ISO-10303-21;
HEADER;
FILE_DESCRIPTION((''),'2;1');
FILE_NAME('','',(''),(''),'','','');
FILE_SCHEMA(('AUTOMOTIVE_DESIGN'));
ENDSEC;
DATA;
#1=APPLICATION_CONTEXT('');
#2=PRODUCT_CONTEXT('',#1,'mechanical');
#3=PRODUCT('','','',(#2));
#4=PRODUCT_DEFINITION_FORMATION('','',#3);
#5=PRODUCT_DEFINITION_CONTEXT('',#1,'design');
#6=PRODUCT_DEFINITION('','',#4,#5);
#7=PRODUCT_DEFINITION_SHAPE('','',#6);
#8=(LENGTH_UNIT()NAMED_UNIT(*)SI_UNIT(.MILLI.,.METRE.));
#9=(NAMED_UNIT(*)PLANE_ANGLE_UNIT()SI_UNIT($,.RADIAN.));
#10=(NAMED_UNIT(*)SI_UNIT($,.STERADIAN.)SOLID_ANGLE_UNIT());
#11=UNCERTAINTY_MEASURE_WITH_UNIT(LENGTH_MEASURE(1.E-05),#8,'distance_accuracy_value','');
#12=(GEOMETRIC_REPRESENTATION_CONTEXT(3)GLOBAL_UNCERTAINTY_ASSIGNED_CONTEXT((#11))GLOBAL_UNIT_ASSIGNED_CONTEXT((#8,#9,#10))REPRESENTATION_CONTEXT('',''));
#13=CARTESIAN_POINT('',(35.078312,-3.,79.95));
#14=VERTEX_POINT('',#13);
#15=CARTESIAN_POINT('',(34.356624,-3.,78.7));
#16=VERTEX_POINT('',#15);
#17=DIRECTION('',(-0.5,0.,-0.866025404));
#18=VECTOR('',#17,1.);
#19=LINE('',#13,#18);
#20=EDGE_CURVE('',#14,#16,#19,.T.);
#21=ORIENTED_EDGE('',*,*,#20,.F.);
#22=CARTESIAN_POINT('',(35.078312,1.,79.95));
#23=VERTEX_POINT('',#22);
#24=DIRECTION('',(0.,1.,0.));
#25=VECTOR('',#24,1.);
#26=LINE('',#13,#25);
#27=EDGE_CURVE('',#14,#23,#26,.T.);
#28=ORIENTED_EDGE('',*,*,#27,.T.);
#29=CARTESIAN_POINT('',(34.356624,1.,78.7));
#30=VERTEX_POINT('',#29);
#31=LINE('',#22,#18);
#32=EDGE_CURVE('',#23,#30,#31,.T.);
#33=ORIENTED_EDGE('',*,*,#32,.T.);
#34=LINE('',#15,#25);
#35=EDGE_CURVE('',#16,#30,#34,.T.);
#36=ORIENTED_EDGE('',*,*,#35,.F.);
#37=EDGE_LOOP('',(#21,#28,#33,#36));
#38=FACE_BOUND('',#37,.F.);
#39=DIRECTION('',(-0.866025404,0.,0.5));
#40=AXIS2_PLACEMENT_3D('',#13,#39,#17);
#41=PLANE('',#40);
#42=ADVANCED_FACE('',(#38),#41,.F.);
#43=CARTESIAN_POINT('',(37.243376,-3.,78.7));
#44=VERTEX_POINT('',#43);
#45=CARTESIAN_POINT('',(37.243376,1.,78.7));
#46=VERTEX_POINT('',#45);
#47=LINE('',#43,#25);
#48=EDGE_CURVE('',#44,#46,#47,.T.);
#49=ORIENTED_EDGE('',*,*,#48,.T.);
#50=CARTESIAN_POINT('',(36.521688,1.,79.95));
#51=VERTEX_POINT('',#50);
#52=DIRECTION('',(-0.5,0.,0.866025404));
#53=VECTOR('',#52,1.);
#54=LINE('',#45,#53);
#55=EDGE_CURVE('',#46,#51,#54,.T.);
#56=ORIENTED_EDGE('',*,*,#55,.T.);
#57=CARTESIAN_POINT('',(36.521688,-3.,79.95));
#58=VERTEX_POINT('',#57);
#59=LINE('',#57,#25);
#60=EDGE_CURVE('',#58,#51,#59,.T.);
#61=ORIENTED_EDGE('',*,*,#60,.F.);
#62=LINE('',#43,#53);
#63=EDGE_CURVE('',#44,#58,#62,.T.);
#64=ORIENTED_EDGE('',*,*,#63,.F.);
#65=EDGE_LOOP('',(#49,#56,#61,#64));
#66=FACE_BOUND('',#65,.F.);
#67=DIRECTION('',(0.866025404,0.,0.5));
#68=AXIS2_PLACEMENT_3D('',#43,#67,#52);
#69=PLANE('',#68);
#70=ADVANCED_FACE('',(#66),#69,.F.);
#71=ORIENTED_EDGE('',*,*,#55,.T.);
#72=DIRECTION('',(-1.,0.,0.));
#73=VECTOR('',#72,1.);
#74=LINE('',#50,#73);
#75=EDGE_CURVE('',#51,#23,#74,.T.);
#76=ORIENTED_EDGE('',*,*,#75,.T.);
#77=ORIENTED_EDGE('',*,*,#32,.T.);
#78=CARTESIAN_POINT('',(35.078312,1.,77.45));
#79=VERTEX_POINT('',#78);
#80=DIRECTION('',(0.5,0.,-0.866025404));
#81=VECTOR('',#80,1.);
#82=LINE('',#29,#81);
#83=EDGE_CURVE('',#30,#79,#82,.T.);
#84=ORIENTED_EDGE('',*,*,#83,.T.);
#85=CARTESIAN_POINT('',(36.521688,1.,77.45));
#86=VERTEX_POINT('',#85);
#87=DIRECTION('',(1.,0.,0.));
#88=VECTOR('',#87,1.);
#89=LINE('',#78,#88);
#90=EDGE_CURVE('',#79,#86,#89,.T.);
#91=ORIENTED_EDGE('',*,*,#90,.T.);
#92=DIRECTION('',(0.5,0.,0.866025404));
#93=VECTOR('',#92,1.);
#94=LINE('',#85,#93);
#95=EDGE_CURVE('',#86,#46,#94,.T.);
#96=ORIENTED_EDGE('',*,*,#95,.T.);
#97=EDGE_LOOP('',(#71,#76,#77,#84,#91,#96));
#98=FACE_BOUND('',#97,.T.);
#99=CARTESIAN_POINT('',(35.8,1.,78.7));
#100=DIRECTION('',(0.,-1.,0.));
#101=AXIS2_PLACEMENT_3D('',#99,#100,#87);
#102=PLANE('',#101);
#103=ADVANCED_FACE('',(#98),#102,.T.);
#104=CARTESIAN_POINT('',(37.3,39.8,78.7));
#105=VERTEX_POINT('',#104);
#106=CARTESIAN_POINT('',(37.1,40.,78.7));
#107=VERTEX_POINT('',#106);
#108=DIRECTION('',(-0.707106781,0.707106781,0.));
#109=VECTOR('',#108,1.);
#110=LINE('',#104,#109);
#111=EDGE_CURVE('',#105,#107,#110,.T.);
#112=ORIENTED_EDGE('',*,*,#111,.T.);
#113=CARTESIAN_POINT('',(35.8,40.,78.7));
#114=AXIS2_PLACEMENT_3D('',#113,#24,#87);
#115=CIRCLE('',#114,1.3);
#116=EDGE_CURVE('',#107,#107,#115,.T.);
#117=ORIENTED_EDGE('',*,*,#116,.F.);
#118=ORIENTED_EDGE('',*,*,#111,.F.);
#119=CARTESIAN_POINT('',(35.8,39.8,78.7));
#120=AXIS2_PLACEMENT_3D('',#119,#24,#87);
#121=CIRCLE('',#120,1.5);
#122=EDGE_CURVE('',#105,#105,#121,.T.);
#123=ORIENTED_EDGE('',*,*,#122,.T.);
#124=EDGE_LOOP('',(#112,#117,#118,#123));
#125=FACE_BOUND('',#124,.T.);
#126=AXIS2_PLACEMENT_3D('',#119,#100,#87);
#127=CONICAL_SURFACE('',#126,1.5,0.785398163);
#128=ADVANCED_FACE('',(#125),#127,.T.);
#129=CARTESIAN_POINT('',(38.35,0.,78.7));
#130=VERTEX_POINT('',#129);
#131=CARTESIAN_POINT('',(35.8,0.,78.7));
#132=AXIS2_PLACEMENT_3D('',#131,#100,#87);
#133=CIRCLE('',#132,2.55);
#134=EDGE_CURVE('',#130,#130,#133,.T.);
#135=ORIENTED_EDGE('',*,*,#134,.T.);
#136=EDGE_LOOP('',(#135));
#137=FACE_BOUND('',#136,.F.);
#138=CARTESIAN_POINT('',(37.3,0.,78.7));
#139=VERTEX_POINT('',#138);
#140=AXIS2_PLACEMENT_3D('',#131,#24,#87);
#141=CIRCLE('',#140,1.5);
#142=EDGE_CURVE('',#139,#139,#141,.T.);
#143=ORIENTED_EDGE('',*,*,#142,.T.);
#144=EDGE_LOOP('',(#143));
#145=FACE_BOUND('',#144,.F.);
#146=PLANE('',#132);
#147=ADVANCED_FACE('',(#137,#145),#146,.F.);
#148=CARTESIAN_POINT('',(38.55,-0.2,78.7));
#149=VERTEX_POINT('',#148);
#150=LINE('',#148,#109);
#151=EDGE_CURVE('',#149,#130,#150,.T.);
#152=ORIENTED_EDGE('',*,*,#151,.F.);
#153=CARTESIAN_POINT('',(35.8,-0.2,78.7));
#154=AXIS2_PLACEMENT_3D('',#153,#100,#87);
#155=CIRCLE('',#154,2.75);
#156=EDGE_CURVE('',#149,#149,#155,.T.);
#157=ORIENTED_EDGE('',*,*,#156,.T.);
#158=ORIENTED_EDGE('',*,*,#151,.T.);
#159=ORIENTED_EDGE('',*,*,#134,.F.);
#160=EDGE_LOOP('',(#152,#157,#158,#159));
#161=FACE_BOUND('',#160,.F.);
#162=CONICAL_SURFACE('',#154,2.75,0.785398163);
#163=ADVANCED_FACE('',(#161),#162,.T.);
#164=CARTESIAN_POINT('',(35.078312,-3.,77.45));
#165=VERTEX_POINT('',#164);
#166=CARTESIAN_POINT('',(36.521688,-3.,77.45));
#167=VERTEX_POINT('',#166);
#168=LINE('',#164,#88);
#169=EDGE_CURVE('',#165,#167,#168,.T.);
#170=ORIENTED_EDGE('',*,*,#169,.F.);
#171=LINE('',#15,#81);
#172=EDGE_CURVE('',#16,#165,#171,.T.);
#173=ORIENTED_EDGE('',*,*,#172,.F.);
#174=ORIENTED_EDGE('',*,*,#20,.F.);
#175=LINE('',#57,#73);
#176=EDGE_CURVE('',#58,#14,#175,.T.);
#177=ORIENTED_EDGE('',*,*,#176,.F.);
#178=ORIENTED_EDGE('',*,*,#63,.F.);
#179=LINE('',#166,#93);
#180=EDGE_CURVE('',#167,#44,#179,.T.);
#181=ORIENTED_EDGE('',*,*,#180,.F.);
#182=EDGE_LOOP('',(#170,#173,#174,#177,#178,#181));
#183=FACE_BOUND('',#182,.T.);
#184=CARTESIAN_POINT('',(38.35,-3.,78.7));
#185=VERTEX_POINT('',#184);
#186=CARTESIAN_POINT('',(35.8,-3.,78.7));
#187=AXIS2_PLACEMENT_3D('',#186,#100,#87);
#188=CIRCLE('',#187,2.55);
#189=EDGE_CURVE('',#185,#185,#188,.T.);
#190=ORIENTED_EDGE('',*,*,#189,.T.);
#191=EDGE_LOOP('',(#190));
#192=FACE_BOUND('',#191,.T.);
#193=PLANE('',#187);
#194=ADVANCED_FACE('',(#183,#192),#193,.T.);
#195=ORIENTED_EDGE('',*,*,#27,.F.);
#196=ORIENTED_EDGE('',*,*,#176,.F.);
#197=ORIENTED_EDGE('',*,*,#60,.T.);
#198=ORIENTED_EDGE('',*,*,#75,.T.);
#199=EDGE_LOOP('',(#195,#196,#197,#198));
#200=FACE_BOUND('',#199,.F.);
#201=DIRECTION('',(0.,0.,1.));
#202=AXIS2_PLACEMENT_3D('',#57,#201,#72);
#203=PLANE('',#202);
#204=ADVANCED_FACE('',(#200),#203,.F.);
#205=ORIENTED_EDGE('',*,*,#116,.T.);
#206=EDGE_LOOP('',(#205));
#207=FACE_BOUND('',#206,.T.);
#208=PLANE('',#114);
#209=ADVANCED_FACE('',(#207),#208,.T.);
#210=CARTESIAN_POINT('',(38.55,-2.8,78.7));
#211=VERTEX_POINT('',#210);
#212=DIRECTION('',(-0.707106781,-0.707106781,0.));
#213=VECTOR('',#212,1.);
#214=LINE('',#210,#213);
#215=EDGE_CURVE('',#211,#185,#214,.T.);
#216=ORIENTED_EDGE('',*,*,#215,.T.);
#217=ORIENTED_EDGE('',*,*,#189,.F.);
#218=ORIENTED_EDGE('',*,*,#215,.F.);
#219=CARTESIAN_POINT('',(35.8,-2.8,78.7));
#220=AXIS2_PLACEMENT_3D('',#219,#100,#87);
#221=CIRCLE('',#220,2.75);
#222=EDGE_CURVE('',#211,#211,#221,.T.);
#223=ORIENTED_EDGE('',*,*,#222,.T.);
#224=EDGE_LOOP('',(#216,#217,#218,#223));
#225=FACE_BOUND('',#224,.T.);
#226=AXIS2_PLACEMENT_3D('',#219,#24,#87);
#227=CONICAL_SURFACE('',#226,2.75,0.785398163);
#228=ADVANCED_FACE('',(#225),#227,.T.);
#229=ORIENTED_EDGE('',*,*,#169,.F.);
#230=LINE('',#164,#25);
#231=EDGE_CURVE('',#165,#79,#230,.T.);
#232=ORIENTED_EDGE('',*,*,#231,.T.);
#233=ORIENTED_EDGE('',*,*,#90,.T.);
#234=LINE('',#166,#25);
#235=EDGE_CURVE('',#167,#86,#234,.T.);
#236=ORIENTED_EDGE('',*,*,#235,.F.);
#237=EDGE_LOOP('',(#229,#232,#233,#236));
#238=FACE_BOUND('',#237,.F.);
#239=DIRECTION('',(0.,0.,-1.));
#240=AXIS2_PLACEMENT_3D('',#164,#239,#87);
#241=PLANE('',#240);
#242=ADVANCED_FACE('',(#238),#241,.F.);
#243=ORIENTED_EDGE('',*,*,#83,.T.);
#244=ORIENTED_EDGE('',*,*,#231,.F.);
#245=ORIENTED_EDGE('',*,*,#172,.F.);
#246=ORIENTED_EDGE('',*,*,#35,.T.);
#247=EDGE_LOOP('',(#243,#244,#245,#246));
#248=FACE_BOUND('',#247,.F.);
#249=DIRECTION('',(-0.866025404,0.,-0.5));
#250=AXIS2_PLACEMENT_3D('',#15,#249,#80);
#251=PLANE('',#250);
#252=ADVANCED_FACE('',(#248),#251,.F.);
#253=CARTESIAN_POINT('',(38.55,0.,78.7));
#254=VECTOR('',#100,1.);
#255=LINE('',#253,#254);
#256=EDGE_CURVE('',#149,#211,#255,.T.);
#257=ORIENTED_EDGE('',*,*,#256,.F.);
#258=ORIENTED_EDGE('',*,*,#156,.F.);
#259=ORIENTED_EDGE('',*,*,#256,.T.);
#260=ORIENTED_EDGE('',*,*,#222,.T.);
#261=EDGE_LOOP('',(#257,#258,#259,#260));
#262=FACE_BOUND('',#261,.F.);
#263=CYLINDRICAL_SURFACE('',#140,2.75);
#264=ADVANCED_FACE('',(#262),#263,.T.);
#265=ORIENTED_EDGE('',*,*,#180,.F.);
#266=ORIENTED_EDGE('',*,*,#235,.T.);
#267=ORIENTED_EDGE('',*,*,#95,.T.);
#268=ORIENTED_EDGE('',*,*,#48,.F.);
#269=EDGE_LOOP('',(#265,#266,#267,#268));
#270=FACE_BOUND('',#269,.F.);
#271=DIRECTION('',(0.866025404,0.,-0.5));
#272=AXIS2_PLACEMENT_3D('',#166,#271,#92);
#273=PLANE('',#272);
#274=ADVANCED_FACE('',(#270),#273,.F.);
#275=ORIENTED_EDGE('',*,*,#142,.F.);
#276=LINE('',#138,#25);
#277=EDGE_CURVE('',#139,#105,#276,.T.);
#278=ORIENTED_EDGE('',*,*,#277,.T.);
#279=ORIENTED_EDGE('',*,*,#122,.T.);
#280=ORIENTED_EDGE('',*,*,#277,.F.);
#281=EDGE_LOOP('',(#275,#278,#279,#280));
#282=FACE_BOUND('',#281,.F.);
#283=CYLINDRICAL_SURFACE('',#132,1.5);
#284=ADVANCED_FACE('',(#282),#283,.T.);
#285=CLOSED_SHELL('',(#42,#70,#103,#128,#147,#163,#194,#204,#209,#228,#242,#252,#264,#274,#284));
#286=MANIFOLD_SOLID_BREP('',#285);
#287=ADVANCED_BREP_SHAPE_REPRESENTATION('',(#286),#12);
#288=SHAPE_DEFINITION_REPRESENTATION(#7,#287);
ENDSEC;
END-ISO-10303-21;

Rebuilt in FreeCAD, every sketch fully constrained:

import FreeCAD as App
import Part
import Sketcher
Q = App.Units.Quantity


def edges_at(feature, points):
    """Names of the edges that pass closest to the given points."""
    edges = feature.Shape.Edges
    near = lambda p: min(range(len(edges)), key=lambda i: edges[i].distToShape(Part.Vertex(*p))[0])
    return sorted({f"Edge{near(p) + 1}" for p in points})


def add_polygon(sketch, points):
    """Adds a closed chain of lines whose ends are joined by coincident constraints."""
    first, n = sketch.GeometryCount, len(points)
    for a, b in zip(points, points[1:] + points[:1]):
        sketch.addGeometry(Part.LineSegment(App.Vector(*a, 0), App.Vector(*b, 0)), False)
    for i in range(n):
        sketch.addConstraint(Sketcher.Constraint("Coincident", first + i, 2, first + (i + 1) % n, 1))

doc = App.newDocument("Part")
body = doc.addObject("PartDesign::Body", "Body")

# Sketch on XY plane
sketch1 = body.newObject("Sketcher::SketchObject", "Sketch")
sketch1.AttachmentSupport = (doc.getObject("XY_Plane"), [""])
sketch1.MapMode = "FlatFace"
sketch1.addGeometry(Part.Circle(App.Vector(0, 0, 0), App.Vector(0, 0, 1), 2.8), False)
sketch1.addConstraint(Sketcher.Constraint("Coincident", 0, 3, -1, 1))
sketch1.addConstraint(Sketcher.Constraint("Diameter", 0, Q("5.5 mm")))
pad1 = body.newObject("PartDesign::Pad", "Pad")
pad1.Profile = sketch1
pad1.Length = 3

# Sketch on XY plane
sketch2 = body.newObject("Sketcher::SketchObject", "Sketch001")
sketch2.AttachmentSupport = (doc.getObject("XY_Plane"), [""])
sketch2.MapMode = "FlatFace"
sketch2.addGeometry(Part.Circle(App.Vector(0, 0, 0), App.Vector(0, 0, 1), 1.5), False)
sketch2.addConstraint(Sketcher.Constraint("Coincident", 0, 3, -1, 1))
sketch2.addConstraint(Sketcher.Constraint("Diameter", 0, Q("3 mm")))
pad2 = body.newObject("PartDesign::Pad", "Pad001")
pad2.Profile = sketch2
pad2.Length = 40
pad2.Reversed = True

# Sketch on XY plane
sketch3 = body.newObject("Sketcher::SketchObject", "Sketch002")
sketch3.AttachmentSupport = (doc.getObject("XY_Plane"), [""])
sketch3.MapMode = "FlatFace"
sketch3.AttachmentOffset = App.Placement(App.Vector(0, 0, 3), App.Rotation())
add_polygon(sketch3, [(0.7, -1.2), (1.4, 0), (0.7, 1.2), (-0.7, 1.2), (-1.4, 0), (-0.7, -1.2)])  # lines 0-5
sketch3.addConstraint(Sketcher.Constraint("Horizontal", 2))
sketch3.addConstraint(Sketcher.Constraint("Horizontal", 5))
sketch3.addConstraint(Sketcher.Constraint("Symmetric", 0, 2, 3, 2, -1, 1))
sketch3.addConstraint(Sketcher.Constraint("Symmetric", 1, 2, 4, 2, -1, 1))
sketch3.addConstraint(Sketcher.Constraint("PointOnObject", 0, 2, -1))
sketch3.addConstraint(Sketcher.Constraint("Parallel", 0, 3))
sketch3.addConstraint(Sketcher.Constraint("Vertical", 2, 2, 4, 2))
sketch3.addConstraint(Sketcher.Constraint("Angle", 0, Q("60 deg")))
sketch3.addConstraint(Sketcher.Constraint("DistanceY", 4, 2, 2, 2, Q("2.5 mm")))
sketch3.addConstraint(Sketcher.Constraint("DistanceX", 2, 2, 2, 1, Q("1.443376 mm")))
pocket1 = body.newObject("PartDesign::Pocket", "Pocket")
pocket1.Profile = sketch3
pocket1.Length = 4
doc.recompute()

chamfer = body.newObject("PartDesign::Chamfer", "Chamfer")
chamfer.Base = (pocket1, edges_at(pocket1, [(-1.5, 0, -40), (-2.75, 0, 0), (-2.75, 0, 3)]))
chamfer.Size = 0.2
body2 = doc.addObject("PartDesign::Body", "Body001")
doc.recompute()

body.Placement = App.Placement(App.Vector(35.8, 0, 78.7), App.Rotation(App.Vector(1, 0, 0), 90))
boolean = body2.newObject("PartDesign::Boolean", "Boolean")
boolean.Type = "Fuse"
boolean.addObjects([body])

doc.recompute()
